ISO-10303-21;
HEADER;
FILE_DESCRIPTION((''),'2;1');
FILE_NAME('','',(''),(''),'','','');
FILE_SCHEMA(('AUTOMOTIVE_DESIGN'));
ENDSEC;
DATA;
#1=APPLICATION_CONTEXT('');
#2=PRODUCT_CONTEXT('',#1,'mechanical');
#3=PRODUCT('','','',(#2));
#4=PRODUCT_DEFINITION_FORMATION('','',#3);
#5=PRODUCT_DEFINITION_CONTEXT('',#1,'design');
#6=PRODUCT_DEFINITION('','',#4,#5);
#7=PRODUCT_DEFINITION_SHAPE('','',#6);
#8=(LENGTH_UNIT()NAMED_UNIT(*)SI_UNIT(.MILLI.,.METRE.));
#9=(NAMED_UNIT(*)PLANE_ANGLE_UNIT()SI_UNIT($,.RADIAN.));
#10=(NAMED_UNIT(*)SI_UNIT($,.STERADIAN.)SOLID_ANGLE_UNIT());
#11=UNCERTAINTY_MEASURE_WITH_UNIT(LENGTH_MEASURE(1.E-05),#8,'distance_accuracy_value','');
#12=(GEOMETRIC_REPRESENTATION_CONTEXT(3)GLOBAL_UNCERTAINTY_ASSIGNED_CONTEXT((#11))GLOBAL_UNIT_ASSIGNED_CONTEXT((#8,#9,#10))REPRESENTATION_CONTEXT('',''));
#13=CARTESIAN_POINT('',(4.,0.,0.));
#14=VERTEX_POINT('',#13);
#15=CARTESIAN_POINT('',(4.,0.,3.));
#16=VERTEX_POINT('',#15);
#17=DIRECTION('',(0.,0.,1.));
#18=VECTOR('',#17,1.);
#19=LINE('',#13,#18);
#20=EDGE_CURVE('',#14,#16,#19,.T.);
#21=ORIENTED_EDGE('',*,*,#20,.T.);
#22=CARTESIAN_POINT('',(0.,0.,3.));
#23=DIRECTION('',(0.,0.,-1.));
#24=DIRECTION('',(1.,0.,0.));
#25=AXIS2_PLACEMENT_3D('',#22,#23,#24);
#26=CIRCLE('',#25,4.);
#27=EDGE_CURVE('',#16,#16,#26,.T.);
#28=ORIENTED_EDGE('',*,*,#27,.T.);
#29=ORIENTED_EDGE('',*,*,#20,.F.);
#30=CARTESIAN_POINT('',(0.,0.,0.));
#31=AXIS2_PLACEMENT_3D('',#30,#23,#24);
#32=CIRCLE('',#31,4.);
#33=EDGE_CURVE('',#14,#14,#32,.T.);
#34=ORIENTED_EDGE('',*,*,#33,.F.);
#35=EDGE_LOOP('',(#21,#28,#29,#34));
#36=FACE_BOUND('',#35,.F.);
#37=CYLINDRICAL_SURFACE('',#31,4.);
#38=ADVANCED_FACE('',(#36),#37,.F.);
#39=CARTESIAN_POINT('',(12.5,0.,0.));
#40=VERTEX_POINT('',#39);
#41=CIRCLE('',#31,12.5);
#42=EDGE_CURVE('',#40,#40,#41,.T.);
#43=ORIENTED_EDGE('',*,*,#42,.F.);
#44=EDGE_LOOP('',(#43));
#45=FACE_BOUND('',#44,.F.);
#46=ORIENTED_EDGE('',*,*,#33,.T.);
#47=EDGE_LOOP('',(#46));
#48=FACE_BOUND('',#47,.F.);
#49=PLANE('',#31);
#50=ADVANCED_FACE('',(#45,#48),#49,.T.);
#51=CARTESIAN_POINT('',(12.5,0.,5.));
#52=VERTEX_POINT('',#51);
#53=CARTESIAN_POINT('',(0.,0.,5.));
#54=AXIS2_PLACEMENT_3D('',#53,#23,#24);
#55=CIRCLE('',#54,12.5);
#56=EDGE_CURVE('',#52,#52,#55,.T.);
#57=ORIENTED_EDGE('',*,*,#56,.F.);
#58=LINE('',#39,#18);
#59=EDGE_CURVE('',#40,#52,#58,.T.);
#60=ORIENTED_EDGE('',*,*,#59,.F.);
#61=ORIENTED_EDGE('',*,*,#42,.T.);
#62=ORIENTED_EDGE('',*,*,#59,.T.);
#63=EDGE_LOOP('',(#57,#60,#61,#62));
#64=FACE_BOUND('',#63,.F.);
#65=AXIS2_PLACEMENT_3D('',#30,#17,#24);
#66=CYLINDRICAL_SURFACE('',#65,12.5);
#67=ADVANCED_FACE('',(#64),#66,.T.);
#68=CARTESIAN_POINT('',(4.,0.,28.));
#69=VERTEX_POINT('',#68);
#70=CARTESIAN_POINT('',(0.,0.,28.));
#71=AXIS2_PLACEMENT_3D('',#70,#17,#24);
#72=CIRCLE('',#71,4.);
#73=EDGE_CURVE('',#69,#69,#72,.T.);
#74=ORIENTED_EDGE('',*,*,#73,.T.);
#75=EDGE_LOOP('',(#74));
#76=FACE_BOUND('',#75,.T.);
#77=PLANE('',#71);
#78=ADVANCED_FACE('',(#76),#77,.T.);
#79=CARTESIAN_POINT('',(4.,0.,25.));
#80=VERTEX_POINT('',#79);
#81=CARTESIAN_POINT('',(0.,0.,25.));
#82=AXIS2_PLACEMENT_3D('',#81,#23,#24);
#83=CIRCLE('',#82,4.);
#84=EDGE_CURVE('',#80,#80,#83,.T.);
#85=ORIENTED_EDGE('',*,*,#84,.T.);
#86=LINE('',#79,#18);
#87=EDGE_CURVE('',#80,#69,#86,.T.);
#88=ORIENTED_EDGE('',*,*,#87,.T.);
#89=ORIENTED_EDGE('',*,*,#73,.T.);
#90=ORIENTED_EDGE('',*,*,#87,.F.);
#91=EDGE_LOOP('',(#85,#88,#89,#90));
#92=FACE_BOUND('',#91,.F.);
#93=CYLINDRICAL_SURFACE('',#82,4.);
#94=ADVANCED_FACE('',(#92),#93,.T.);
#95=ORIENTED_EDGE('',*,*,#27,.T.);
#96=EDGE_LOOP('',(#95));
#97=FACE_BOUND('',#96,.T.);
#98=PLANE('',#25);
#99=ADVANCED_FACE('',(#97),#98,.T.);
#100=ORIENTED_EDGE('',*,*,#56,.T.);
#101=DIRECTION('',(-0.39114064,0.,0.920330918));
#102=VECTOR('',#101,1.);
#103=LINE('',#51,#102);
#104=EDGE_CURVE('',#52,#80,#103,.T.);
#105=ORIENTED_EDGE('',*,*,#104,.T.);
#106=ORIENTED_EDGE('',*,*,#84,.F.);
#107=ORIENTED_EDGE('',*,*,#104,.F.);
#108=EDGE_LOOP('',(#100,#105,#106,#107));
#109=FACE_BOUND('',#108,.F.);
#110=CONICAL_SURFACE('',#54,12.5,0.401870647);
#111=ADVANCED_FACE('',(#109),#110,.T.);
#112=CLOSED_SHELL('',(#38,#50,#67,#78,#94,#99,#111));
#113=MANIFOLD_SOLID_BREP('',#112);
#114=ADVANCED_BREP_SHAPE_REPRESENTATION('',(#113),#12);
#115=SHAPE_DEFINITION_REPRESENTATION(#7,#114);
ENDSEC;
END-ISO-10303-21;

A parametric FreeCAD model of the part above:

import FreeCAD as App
import Part
import Sketcher
Q = App.Units.Quantity

doc = App.newDocument("Part")
body = doc.addObject("PartDesign::Body", "Body")

sketch1 = doc.addObject("Sketcher::SketchObject", "Sketch")
body.addObject(sketch1)
sketch1.AttachmentSupport = (doc.XZ_Plane, [""])
sketch1.MapMode = "FlatFace"
sketch1.addGeometry(Part.LineSegment(App.Vector(0, 25, 0), App.Vector(0, 0, 0)), False)
sketch1.addGeometry(Part.LineSegment(App.Vector(0, 0, 0), App.Vector(12.5, 0, 0)), False)
sketch1.addGeometry(Part.LineSegment(App.Vector(12.5, 0, 0), App.Vector(12.5, 5, 0)), False)
sketch1.addGeometry(Part.LineSegment(App.Vector(12.5, 5, 0), App.Vector(4, 25, 0)), False)
sketch1.addGeometry(Part.LineSegment(App.Vector(4, 25, 0), App.Vector(0, 25, 0)), False)
sketch1.addConstraint(Sketcher.Constraint("Coincident", 0, 2, 1, 1))
sketch1.addConstraint(Sketcher.Constraint("Coincident", 1, 2, 2, 1))
sketch1.addConstraint(Sketcher.Constraint("Coincident", 2, 2, 3, 1))
sketch1.addConstraint(Sketcher.Constraint("Coincident", 3, 2, 4, 1))
sketch1.addConstraint(Sketcher.Constraint("Coincident", 4, 2, 0, 1))
sketch1.addConstraint(Sketcher.Constraint("Vertical", 0))
sketch1.addConstraint(Sketcher.Constraint("Horizontal", 1))
sketch1.addConstraint(Sketcher.Constraint("Vertical", 2))
sketch1.addConstraint(Sketcher.Constraint("Horizontal", 4))
sketch1.addConstraint(Sketcher.Constraint("Coincident", 0, 2, -1, 1))
sketch1.addConstraint(Sketcher.Constraint("DistanceX", 4, 2, 4, 1, Q("4 mm")))
sketch1.addConstraint(Sketcher.Constraint("DistanceY", 0, 2, 0, 1, Q("25 mm")))
sketch1.addConstraint(Sketcher.Constraint("DistanceY", 2, 1, 2, 2, Q("5 mm")))
sketch1.addConstraint(Sketcher.Constraint("DistanceX", 1, 1, 1, 2, Q("12.5 mm")))
revolution = doc.addObject("PartDesign::Revolution", "Revolution")
body.addObject(revolution)
revolution.Profile = sketch1
revolution.ReferenceAxis = (sketch1, ["V_Axis"])
revolution.Angle = 360

sketch2 = doc.addObject("Sketcher::SketchObject", "Sketch001")
body.addObject(sketch2)
sketch2.AttachmentSupport = (doc.XY_Plane, [""])
sketch2.MapMode = "FlatFace"
sketch2.AttachmentOffset = App.Placement(App.Vector(0, 0, 25), App.Rotation())
sketch2.addGeometry(Part.Circle(App.Vector(0, 0, 0), App.Vector(0, 0, 1), 4), False)
sketch2.addConstraint(Sketcher.Constraint("Coincident", 0, 3, -1, 1))
sketch2.addConstraint(Sketcher.Constraint("Diameter", 0, Q("8 mm")))
pad1 = doc.addObject("PartDesign::Pad", "Pad")
body.addObject(pad1)
pad1.Profile = sketch2
pad1.Length = 3

sketch3 = doc.addObject("Sketcher::SketchObject", "Sketch002")
body.addObject(sketch3)
sketch3.AttachmentSupport = (doc.XY_Plane, [""])
sketch3.MapMode = "FlatFace"
sketch3.addGeometry(Part.Circle(App.Vector(0, 0, 0), App.Vector(0, 0, 1), 4), False)
sketch3.addConstraint(Sketcher.Constraint("Coincident", 0, 3, -1, 1))
sketch3.addConstraint(Sketcher.Constraint("Diameter", 0, Q("8 mm")))
pocket1 = doc.addObject("PartDesign::Pocket", "Pocket")
body.addObject(pocket1)
pocket1.Profile = sketch3
pocket1.Length = 3
pocket1.Reversed = True

doc.recompute()
